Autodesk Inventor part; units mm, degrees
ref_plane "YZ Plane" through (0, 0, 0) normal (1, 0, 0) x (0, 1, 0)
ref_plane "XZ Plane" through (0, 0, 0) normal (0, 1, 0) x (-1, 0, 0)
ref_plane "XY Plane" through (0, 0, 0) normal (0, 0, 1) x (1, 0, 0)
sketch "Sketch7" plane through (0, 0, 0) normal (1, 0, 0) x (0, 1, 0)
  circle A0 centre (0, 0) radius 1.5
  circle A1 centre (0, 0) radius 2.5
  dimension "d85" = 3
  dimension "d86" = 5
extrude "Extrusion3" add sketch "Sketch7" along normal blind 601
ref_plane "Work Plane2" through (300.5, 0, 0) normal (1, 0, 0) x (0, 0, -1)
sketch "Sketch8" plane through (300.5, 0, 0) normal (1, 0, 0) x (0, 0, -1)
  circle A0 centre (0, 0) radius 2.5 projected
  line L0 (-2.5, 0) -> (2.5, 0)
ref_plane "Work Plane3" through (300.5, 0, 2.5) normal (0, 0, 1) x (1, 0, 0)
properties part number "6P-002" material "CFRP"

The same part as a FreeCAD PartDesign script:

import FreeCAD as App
import Part
import Sketcher
from FreeCAD import Vector
Q = App.Units.Quantity

doc = App.newDocument("Part")
body = doc.addObject("PartDesign::Body", "Body")

# Sketch on YZ plane
sketch1 = doc.addObject("Sketcher::SketchObject", "Sketch")
body.addObject(sketch1)
sketch1.AttachmentSupport = (doc.YZ_Plane, [""])
sketch1.MapMode = "FlatFace"
sketch1.addGeometry([
    Part.Circle(Vector(0, 0, 0), Vector(0, 0, 1), 2.5),
    Part.Circle(Vector(0, 0, 0), Vector(0, 0, 1), 1.5),
], False)
sketch1.addConstraint([
    Sketcher.Constraint("Coincident", 0, 3, -1, 1),
    Sketcher.Constraint("Coincident", 1, 3, -1, 1),
    Sketcher.Constraint("Diameter", 0, Q("5 mm")),
    Sketcher.Constraint("Diameter", 1, Q("3 mm")),
])
pad1 = doc.addObject("PartDesign::Pad", "Pad")
body.addObject(pad1)
pad1.Profile = sketch1
pad1.Length = 601

doc.recompute()
